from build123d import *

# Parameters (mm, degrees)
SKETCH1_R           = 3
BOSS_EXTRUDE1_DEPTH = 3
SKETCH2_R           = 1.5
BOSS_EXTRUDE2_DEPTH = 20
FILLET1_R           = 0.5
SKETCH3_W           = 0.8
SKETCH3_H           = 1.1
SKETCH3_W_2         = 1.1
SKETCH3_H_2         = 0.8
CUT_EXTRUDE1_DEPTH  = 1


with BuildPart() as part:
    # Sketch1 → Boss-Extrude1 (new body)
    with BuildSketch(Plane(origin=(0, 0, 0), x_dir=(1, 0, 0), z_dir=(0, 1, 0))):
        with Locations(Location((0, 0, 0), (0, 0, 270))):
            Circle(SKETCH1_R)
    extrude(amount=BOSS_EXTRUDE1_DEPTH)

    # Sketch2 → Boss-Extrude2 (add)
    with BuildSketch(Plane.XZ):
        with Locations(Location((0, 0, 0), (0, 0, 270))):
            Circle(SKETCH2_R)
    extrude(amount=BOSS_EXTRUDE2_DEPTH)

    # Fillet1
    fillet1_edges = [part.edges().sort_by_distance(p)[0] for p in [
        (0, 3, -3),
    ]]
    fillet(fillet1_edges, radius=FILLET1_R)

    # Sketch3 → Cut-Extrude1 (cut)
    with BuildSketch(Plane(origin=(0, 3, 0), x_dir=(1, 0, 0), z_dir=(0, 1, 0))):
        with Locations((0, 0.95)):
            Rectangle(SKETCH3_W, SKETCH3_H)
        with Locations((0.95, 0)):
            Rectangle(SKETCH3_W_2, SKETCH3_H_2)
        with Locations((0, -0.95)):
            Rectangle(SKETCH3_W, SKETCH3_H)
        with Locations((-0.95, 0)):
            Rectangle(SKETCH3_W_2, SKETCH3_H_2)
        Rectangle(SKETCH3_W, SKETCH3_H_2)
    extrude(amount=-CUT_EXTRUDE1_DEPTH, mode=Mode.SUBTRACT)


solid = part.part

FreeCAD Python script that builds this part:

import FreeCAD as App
import Part
import Sketcher
from FreeCAD import Vector


def edges_at(feature, points):
    """Names of the edges that pass closest to the given points."""
    edges = feature.Shape.Edges
    near = lambda p: min(range(len(edges)), key=lambda i: edges[i].distToShape(Part.Vertex(*p))[0])
    return sorted({f"Edge{near(p) + 1}" for p in points})

doc = App.newDocument("Part")
params = doc.addObject("Spreadsheet::Sheet", "Params")
for row, (alias, value) in enumerate([
    ("sketch1_diameter", "6 mm"),
    ("pad1_length", "3 mm"),
    ("sketch2_diameter", "3 mm"),
    ("pad2_length", "20 mm"),
    ("fillet_radius", "0.5 mm"),
    ("sketch3_width", "1.1 mm"),
    ("sketch3_width2", "0.8 mm"),
    ("pocket1_length", "1 mm"),
], start=1):
    params.set(f"A{row}", alias)
    params.set(f"B{row}", "=" + value)
    params.setAlias(f"B{row}", alias)

body = doc.addObject("PartDesign::Body", "Body")

sketch1 = body.newObject("Sketcher::SketchObject", "Sketch")
sketch1.AttachmentSupport = (doc.getObject("XZ_Plane"), [""])
sketch1.MapMode = "FlatFace"
sketch1.addGeometry(Part.Circle(Vector(0, 0, 0), Vector(0, 0, 1), 3), False)
sketch1.addConstraint(Sketcher.Constraint("Coincident", 0, 3, -1, 1))
sketch1.addConstraint(Sketcher.Constraint("Diameter", 0, 6.0))
sketch1.setExpression("Constraints[1]", "Params.sketch1_diameter")
pad1 = body.newObject("PartDesign::Pad", "Pad")
pad1.Profile = sketch1
pad1.setExpression("Length", "Params.pad1_length")
pad1.Reversed = True

sketch2 = body.newObject("Sketcher::SketchObject", "Sketch001")
sketch2.AttachmentSupport = (doc.getObject("XZ_Plane"), [""])
sketch2.MapMode = "FlatFace"
sketch2.addGeometry(Part.Circle(Vector(0, 0, 0), Vector(0, 0, 1), 1.5), False)
sketch2.addConstraint(Sketcher.Constraint("Coincident", 0, 3, -1, 1))
sketch2.addConstraint(Sketcher.Constraint("Diameter", 0, 3.0))
sketch2.setExpression("Constraints[1]", "Params.sketch2_diameter")
pad2 = body.newObject("PartDesign::Pad", "Pad001")
pad2.Profile = sketch2
pad2.setExpression("Length", "Params.pad2_length")
doc.recompute()

fillet = body.newObject("PartDesign::Fillet", "Fillet")
fillet.Base = (pad2, edges_at(pad2, [(0, 3, -3)]))
fillet.setExpression("Radius", "Params.fillet_radius")

sketch3 = body.newObject("Sketcher::SketchObject", "Sketch002")
sketch3.AttachmentSupport = (doc.getObject("XZ_Plane"), [""])
sketch3.MapMode = "FlatFace"
sketch3.AttachmentOffset = App.Placement(Vector(0, 0, -3), App.Rotation())
sketch3.addGeometry(Part.LineSegment(Vector(-0.4, -1.5, 0), Vector(-0.4, -0.4, 0)), False)
sketch3.addGeometry(Part.LineSegment(Vector(-0.4, -0.4, 0), Vector(-1.5, -0.4, 0)), False)
sketch3.addGeometry(Part.LineSegment(Vector(-1.5, -0.4, 0), Vector(-1.5, 0.4, 0)), False)
sketch3.addGeometry(Part.LineSegment(Vector(-1.5, 0.4, 0), Vector(-0.4, 0.4, 0)), False)
sketch3.addGeometry(Part.LineSegment(Vector(-0.4, 0.4, 0), Vector(-0.4, 1.5, 0)), False)
sketch3.addGeometry(Part.LineSegment(Vector(-0.4, 1.5, 0), Vector(0.4, 1.5, 0)), False)
sketch3.addGeometry(Part.LineSegment(Vector(0.4, 1.5, 0), Vector(0.4, 0.4, 0)), False)
sketch3.addGeometry(Part.LineSegment(Vector(0.4, 0.4, 0), Vector(1.5, 0.4, 0)), False)
sketch3.addGeometry(Part.LineSegment(Vector(1.5, 0.4, 0), Vector(1.5, -0.4, 0)), False)
sketch3.addGeometry(Part.LineSegment(Vector(1.5, -0.4, 0), Vector(0.4, -0.4, 0)), False)
sketch3.addGeometry(Part.LineSegment(Vector(0.4, -0.4, 0), Vector(0.4, -1.5, 0)), False)
sketch3.addGeometry(Part.LineSegment(Vector(0.4, -1.5, 0), Vector(-0.4, -1.5, 0)), False)
sketch3.addConstraint(Sketcher.Constraint("Coincident", 0, 2, 1, 1))
sketch3.addConstraint(Sketcher.Constraint("Coincident", 1, 2, 2, 1))
sketch3.addConstraint(Sketcher.Constraint("Coincident", 2, 2, 3, 1))
sketch3.addConstraint(Sketcher.Constraint("Coincident", 3, 2, 4, 1))
sketch3.addConstraint(Sketcher.Constraint("Coincident", 4, 2, 5, 1))
sketch3.addConstraint(Sketcher.Constraint("Coincident", 5, 2, 6, 1))
sketch3.addConstraint(Sketcher.Constraint("Coincident", 6, 2, 7, 1))
sketch3.addConstraint(Sketcher.Constraint("Coincident", 7, 2, 8, 1))
sketch3.addConstraint(Sketcher.Constraint("Coincident", 8, 2, 9, 1))
sketch3.addConstraint(Sketcher.Constraint("Coincident", 9, 2, 10, 1))
sketch3.addConstraint(Sketcher.Constraint("Coincident", 10, 2, 11, 1))
sketch3.addConstraint(Sketcher.Constraint("Coincident", 11, 2, 0, 1))
sketch3.addConstraint(Sketcher.Constraint("Vertical", 0))
sketch3.addConstraint(Sketcher.Constraint("Horizontal", 1))
sketch3.addConstraint(Sketcher.Constraint("Vertical", 2))
sketch3.addConstraint(Sketcher.Constraint("Horizontal", 3))
sketch3.addConstraint(Sketcher.Constraint("Vertical", 4))
sketch3.addConstraint(Sketcher.Constraint("Horizontal", 5))
sketch3.addConstraint(Sketcher.Constraint("Vertical", 6))
sketch3.addConstraint(Sketcher.Constraint("Horizontal", 7))
sketch3.addConstraint(Sketcher.Constraint("Vertical", 8))
sketch3.addConstraint(Sketcher.Constraint("Horizontal", 9))
sketch3.addConstraint(Sketcher.Constraint("Vertical", 10))
sketch3.addConstraint(Sketcher.Constraint("Horizontal", 11))
sketch3.addConstraint(Sketcher.Constraint("Symmetric", 0, 2, 6, 2, -1, 1))
sketch3.addConstraint(Sketcher.Constraint("Symmetric", 2, 2, 8, 2, -1, 1))
sketch3.addConstraint(Sketcher.Constraint("Symmetric", 4, 2, 10, 2, -1, 1))
sketch3.addConstraint(Sketcher.Constraint("Symmetric", 3, 2, 6, 2, -2))
sketch3.addConstraint(Sketcher.Constraint("Equal", 9, 0))
sketch3.addConstraint(Sketcher.Constraint("Equal", 11, 2))
sketch3.addConstraint(Sketcher.Constraint("DistanceX", 1, 2, 1, 1, 1.1))
sketch3.addConstraint(Sketcher.Constraint("DistanceX", 5, 1, 5, 2, 0.8))
sketch3.setExpression("Constraints[30]", "Params.sketch3_width")
sketch3.setExpression("Constraints[31]", "Params.sketch3_width2")
pocket1 = body.newObject("PartDesign::Pocket", "Pocket")
pocket1.Profile = sketch3
pocket1.setExpression("Length", "Params.pocket1_length")
pocket1.Reversed = True

doc.recompute()
